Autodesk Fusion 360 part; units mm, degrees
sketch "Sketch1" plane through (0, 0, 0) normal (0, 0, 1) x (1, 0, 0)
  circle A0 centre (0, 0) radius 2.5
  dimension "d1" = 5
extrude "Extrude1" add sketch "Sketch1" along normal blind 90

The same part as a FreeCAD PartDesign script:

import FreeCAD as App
import Part
import Sketcher
from FreeCAD import Vector
Q = App.Units.Quantity

doc = App.newDocument("Part")
body = doc.addObject("PartDesign::Body", "Body")

sketch1 = body.newObject("Sketcher::SketchObject", "Sketch")
sketch1.AttachmentSupport = (doc.getObject("XY_Plane"), [""])
sketch1.MapMode = "FlatFace"
sketch1.addGeometry(Part.Circle(Vector(0, 0, 0), Vector(0, 0, 1), 2.5), False)
sketch1.addConstraint([
    Sketcher.Constraint("Coincident", 0, 3, -1, 1),
    Sketcher.Constraint("Diameter", 0, Q("5 mm")),
])
pad1 = body.newObject("PartDesign::Pad", "Pad")
pad1.Profile = sketch1
pad1.Length = 90

doc.recompute()
